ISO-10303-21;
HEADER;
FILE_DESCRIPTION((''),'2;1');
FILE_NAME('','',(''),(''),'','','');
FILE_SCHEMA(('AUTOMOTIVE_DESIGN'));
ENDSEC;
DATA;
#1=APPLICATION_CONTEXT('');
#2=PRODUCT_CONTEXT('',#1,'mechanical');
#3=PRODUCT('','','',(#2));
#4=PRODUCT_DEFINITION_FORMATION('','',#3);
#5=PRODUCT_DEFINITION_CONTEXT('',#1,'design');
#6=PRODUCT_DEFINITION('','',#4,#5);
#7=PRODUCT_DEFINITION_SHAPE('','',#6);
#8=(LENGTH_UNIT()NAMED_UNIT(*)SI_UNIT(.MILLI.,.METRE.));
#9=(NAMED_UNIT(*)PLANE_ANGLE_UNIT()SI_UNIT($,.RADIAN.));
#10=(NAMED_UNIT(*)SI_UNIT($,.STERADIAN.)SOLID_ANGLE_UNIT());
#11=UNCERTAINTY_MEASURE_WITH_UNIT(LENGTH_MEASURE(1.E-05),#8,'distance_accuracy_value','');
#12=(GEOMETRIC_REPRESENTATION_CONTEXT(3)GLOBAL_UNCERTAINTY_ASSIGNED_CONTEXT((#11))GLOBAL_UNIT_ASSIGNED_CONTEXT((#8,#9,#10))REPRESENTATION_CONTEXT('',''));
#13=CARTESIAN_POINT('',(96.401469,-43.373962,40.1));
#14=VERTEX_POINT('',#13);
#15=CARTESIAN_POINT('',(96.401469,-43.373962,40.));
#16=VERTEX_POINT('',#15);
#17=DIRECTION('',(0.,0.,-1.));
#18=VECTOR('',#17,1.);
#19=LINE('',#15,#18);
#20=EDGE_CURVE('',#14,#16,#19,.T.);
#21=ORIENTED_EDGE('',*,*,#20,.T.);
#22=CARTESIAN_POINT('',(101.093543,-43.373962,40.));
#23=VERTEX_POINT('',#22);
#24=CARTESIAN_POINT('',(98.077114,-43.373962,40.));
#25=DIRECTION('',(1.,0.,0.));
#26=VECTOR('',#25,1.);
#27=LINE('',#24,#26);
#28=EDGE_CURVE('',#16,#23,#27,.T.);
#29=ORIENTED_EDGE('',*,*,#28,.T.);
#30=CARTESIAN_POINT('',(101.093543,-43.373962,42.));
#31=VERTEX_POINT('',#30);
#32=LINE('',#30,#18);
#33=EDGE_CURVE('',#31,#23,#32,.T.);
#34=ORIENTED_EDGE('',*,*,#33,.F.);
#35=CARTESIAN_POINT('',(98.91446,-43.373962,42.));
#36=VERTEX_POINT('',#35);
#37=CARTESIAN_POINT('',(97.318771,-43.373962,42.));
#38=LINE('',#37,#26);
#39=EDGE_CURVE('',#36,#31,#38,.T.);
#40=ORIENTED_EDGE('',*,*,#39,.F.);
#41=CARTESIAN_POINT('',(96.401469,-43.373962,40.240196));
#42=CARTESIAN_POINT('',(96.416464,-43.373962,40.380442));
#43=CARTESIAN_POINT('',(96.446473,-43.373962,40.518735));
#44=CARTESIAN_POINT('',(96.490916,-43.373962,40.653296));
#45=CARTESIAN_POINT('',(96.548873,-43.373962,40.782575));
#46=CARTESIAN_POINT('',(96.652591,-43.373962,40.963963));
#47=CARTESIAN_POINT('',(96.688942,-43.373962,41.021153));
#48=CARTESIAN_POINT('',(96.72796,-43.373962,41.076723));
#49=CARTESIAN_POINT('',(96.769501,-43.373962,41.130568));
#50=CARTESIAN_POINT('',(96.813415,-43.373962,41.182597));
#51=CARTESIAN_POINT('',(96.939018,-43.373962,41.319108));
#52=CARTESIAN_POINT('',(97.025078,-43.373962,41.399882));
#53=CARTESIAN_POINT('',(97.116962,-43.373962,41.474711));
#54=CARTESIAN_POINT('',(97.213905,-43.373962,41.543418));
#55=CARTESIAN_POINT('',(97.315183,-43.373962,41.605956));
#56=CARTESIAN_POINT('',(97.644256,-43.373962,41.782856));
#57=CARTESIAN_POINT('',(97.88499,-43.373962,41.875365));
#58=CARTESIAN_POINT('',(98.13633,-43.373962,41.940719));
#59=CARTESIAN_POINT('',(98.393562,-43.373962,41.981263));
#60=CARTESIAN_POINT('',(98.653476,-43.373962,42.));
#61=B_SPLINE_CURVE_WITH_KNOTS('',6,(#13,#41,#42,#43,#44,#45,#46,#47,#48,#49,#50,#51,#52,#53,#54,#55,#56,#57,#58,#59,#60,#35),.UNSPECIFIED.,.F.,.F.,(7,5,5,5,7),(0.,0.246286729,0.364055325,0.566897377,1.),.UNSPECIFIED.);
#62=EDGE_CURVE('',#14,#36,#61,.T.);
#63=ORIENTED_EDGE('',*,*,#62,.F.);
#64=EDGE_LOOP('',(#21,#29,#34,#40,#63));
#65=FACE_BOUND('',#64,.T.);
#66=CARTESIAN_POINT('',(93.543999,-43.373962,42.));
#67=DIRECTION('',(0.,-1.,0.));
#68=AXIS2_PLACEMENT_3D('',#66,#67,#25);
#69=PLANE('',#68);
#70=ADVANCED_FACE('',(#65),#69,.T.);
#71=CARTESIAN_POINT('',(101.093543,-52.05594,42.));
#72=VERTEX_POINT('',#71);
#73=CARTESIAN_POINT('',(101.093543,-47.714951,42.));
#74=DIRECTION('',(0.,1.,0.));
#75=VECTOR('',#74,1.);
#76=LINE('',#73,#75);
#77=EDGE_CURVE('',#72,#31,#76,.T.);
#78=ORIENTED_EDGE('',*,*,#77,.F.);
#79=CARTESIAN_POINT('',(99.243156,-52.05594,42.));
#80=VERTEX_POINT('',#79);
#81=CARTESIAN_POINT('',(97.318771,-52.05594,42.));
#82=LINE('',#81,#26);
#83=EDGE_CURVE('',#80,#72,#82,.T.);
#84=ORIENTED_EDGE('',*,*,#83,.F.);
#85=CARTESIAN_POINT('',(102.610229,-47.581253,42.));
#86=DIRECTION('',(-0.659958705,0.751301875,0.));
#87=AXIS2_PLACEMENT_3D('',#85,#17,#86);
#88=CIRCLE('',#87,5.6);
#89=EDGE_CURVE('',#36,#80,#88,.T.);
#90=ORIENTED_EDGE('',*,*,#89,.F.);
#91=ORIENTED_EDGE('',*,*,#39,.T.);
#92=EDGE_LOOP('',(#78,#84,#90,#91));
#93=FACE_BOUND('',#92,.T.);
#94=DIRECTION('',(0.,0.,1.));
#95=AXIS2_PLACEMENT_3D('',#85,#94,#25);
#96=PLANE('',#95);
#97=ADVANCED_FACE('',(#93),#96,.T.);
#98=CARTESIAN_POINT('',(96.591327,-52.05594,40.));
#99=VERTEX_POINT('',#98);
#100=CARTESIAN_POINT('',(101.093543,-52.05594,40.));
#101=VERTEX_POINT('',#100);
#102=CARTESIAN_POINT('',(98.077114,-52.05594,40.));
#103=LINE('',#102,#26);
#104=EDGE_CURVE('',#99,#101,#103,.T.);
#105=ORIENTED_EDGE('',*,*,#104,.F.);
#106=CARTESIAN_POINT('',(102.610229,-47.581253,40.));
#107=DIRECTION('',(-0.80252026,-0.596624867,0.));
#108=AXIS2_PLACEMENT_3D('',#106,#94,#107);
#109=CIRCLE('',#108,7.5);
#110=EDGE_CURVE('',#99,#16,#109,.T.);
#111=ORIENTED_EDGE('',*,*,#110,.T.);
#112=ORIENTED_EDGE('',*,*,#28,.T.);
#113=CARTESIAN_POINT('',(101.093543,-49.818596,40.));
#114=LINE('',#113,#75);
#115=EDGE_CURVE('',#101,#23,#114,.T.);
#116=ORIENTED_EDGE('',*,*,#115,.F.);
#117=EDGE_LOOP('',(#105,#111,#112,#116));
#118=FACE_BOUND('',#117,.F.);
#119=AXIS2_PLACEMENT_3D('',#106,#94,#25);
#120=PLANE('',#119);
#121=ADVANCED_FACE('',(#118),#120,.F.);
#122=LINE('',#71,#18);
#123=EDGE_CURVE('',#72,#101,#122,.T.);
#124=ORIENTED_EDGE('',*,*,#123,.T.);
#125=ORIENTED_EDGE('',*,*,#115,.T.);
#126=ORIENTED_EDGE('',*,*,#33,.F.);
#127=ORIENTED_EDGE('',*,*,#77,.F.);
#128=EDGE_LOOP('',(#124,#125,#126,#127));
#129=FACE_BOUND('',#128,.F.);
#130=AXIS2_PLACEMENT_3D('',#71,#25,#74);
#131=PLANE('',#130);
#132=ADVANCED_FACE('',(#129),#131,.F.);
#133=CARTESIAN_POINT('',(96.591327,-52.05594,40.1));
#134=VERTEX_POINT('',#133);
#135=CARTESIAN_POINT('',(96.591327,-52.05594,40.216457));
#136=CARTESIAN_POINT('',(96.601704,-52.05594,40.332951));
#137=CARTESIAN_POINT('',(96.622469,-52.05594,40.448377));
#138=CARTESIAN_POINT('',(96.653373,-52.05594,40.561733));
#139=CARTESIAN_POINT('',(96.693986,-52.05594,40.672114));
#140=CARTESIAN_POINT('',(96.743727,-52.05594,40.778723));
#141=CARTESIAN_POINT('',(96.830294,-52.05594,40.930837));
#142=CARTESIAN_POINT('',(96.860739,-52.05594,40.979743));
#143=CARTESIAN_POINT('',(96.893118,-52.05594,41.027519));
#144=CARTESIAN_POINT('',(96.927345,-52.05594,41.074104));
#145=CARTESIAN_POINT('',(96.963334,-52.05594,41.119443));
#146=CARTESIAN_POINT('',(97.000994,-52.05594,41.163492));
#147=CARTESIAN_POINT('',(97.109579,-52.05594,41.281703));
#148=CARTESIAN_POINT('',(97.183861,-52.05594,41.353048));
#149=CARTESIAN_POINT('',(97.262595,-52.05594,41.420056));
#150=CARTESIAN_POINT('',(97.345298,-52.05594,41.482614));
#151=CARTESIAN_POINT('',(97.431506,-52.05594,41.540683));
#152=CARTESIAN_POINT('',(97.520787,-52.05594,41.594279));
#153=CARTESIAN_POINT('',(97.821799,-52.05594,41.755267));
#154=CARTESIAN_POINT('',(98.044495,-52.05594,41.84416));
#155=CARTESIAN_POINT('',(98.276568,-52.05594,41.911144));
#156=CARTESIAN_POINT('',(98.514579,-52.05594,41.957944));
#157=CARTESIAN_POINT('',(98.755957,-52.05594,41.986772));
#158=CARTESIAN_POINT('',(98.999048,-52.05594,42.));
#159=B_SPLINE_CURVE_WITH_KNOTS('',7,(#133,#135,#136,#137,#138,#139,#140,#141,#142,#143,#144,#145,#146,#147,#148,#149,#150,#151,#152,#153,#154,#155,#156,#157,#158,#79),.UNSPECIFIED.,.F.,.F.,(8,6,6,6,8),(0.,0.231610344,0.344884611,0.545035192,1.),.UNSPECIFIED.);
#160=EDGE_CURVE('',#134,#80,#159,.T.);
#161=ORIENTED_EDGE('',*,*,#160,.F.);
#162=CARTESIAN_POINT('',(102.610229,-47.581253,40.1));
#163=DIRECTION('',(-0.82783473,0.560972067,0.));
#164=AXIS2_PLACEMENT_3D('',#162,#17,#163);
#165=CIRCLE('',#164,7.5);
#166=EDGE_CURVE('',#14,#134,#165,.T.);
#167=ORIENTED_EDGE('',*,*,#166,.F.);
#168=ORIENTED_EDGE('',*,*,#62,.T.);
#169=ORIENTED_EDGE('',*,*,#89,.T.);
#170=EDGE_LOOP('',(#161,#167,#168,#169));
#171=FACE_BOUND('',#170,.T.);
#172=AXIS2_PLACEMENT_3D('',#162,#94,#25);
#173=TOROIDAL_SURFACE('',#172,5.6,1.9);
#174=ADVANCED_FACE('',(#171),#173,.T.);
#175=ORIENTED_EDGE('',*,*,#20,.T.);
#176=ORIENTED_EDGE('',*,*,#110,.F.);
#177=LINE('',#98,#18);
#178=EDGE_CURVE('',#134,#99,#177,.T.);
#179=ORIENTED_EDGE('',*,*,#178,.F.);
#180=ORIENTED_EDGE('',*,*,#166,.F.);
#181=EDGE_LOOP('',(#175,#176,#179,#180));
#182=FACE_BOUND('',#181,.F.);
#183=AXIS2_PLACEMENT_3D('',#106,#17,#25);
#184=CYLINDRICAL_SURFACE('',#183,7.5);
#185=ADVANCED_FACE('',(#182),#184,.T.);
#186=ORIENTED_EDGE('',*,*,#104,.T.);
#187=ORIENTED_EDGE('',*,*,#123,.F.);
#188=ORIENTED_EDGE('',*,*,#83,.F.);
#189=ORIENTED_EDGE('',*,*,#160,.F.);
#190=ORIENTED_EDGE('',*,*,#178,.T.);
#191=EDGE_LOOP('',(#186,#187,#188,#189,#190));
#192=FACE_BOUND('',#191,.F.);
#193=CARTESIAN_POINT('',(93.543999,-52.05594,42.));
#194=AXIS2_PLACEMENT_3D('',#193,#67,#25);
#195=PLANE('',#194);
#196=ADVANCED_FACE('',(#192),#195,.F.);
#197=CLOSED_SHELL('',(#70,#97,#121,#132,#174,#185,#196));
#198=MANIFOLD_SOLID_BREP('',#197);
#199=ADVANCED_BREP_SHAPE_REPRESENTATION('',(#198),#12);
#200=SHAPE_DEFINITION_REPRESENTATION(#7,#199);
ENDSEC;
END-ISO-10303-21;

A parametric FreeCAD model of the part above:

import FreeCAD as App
import Part
import Sketcher

V = App.Vector


def edges_at(feature, points):
    """Names of the edges that pass closest to the given points."""
    edges = feature.Shape.Edges
    near = lambda p: min(range(len(edges)), key=lambda i: edges[i].distToShape(Part.Vertex(*p))[0])
    return sorted({f"Edge{near(p) + 1}" for p in points})


def add_polygon(sketch, points):
    """Adds a closed chain of lines whose ends are joined by coincident constraints."""
    first, n = sketch.GeometryCount, len(points)
    for a, b in zip(points, points[1:] + points[:1]):
        sketch.addGeometry(Part.LineSegment(App.Vector(*a, 0), App.Vector(*b, 0)), False)
    for i in range(n):
        sketch.addConstraint(Sketcher.Constraint("Coincident", first + i, 2, first + (i + 1) % n, 1))

doc = App.newDocument("Part")
body = doc.addObject("PartDesign::Body", "Body")

sketch1 = doc.addObject("Sketcher::SketchObject", "Sketch")
body.addObject(sketch1)
sketch1.AttachmentSupport = (doc.XY_Plane, [""])
sketch1.MapMode = "FlatFace"
sketch1.addGeometry(Part.Circle(V(103, -48, 0), V(0, 0, 1), 8), False)
sketch1.addConstraint([
    Sketcher.Constraint("Diameter", 0, 15.0),
    Sketcher.Constraint("DistanceX", -1, 1, 0, 3, 102.610229),
    Sketcher.Constraint("DistanceY", 0, 3, -1, 1, 47.581253),
])
pad1 = doc.addObject("PartDesign::Pad", "Pad")
body.addObject(pad1)
pad1.Profile = sketch1
pad1.Length = 2
doc.recompute()

fillet = doc.addObject("PartDesign::Fillet", "Fillet")
body.addObject(fillet)
fillet.Base = (pad1, edges_at(pad1, [(95.11, -47.581, 2)]))
fillet.Radius = 1.9

sketch2 = doc.addObject("Sketcher::SketchObject", "Sketch001")
body.addObject(sketch2)
sketch2.AttachmentSupport = (doc.XY_Plane, [""])
sketch2.MapMode = "FlatFace"
sketch2.AttachmentOffset = App.Placement(V(0, 0, 2), App.Rotation())
add_polygon(sketch2, [(94, -43), (94, -52), (101, -52), (101, -43)])
sketch2.addConstraint([
    Sketcher.Constraint("Vertical", 0),
    Sketcher.Constraint("Horizontal", 1),
    Sketcher.Constraint("Vertical", 2),
    Sketcher.Constraint("Horizontal", 3),
    Sketcher.Constraint("DistanceX", -1, 1, 0, 2, 93.543999),
    Sketcher.Constraint("DistanceX", 1, 1, 1, 2, 7.549545),
    Sketcher.Constraint("DistanceY", 0, 2, 0, 1, 8.681977),
    Sketcher.Constraint("DistanceY", 0, 2, -1, 1, 52.05594),
])
pocket1 = doc.addObject("PartDesign::Pocket", "Pocket")
body.addObject(pocket1)
pocket1.Profile = sketch2
pocket1.Length = 5
body2 = doc.addObject("PartDesign::Body", "Body001")
doc.recompute()

body.Placement = App.Placement(V(0, 0, 40), App.Rotation(V(0, 0, 1), 0))
boolean = doc.addObject("PartDesign::Boolean", "Boolean")
body2.addObject(boolean)
boolean.Type = "Fuse"
boolean.addObjects([body])

doc.recompute()
